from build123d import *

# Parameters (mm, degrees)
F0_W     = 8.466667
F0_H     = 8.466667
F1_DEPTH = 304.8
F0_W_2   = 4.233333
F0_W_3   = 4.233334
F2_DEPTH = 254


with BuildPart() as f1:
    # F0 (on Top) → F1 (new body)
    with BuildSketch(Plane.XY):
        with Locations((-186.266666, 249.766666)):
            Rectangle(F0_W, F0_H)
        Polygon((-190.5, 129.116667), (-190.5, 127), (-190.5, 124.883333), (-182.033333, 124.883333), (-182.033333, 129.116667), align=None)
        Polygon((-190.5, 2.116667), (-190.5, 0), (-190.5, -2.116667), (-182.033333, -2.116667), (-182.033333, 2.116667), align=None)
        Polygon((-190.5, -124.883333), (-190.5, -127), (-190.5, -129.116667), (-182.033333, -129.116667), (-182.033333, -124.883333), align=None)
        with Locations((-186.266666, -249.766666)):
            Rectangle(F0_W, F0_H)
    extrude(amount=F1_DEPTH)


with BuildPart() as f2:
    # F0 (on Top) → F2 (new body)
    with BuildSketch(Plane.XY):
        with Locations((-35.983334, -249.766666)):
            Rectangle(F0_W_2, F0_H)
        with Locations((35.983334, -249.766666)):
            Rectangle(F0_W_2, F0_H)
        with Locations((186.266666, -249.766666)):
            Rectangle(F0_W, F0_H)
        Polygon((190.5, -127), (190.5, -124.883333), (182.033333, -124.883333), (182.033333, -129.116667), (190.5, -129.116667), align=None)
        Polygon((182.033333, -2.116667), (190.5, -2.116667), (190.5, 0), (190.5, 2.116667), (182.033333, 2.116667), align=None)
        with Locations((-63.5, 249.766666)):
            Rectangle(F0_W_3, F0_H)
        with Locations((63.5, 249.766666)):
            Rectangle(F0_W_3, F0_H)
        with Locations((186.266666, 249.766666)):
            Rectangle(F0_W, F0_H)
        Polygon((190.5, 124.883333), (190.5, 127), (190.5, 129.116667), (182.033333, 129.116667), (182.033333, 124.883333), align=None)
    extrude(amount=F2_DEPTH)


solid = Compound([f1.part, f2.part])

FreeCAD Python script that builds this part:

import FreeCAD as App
import Part
import Sketcher

V = App.Vector
Q = App.Units.Quantity


def add_polygon(sketch, points):
    """Adds a closed chain of lines whose ends are joined by coincident constraints."""
    first, n = sketch.GeometryCount, len(points)
    for a, b in zip(points, points[1:] + points[:1]):
        sketch.addGeometry(Part.LineSegment(App.Vector(*a, 0), App.Vector(*b, 0)), False)
    for i in range(n):
        sketch.addConstraint(Sketcher.Constraint("Coincident", first + i, 2, first + (i + 1) % n, 1))

doc = App.newDocument("Part")
body = doc.addObject("PartDesign::Body", "Body")
body.AllowCompound = True

sketch1 = body.newObject("Sketcher::SketchObject", "Sketch")
sketch1.AttachmentSupport = (doc.getObject("XY_Plane"), [""])
sketch1.MapMode = "FlatFace"
add_polygon(sketch1, [(-190.5, 254), (-190.5, 245.5), (-182, 245.5), (-182, 254)])
add_polygon(sketch1, [(-190.5, 129.1), (-190.5, 124.9), (-182, 124.9), (-182, 129.1)])
add_polygon(sketch1, [(-190.5, 2.1), (-190.5, -2.1), (-182, -2.1), (-182, 2.1)])
add_polygon(sketch1, [(-190.5, -124.9), (-190.5, -129.1), (-182, -129.1), (-182, -124.9)])
add_polygon(sketch1, [(-190.5, -245.5), (-190.5, -254), (-182, -254), (-182, -245.5)])
sketch1.addConstraint([
    Sketcher.Constraint("Vertical", 0),
    Sketcher.Constraint("Horizontal", 1),
    Sketcher.Constraint("Vertical", 2),
    Sketcher.Constraint("Horizontal", 3),
    Sketcher.Constraint("Vertical", 4),
    Sketcher.Constraint("Horizontal", 5),
    Sketcher.Constraint("Vertical", 6),
    Sketcher.Constraint("Horizontal", 7),
    Sketcher.Constraint("Vertical", 8),
    Sketcher.Constraint("Horizontal", 9),
    Sketcher.Constraint("Vertical", 10),
    Sketcher.Constraint("Horizontal", 11),
    Sketcher.Constraint("Vertical", 12),
    Sketcher.Constraint("Horizontal", 13),
    Sketcher.Constraint("Vertical", 14),
    Sketcher.Constraint("Horizontal", 15),
    Sketcher.Constraint("Vertical", 16),
    Sketcher.Constraint("Horizontal", 17),
    Sketcher.Constraint("Vertical", 18),
    Sketcher.Constraint("Horizontal", 19),
    Sketcher.Constraint("Symmetric", 7, 2, 12, 2, -1),
    Sketcher.Constraint("Symmetric", 5, 2, 14, 2, -1),
    Sketcher.Constraint("Symmetric", 3, 2, 16, 2, -1),
    Sketcher.Constraint("Symmetric", 1, 2, 18, 2, -1),
    Sketcher.Constraint("Vertical", 3, 2, 4, 2),
    Sketcher.Constraint("Vertical", 2, 2, 5, 2),
    Sketcher.Constraint("Vertical", 7, 2, 8, 2),
    Sketcher.Constraint("Vertical", 6, 2, 9, 2),
    Sketcher.Constraint("Equal", 19, 0),
    Sketcher.Constraint("Equal", 6, 8),
    Sketcher.Constraint("DistanceY", -1, 1, 2, 2, Q("10 in")),
    Sketcher.Constraint("DistanceY", 8, 2, 4, 2, Q("5 in")),
    Sketcher.Constraint("DistanceY", 12, 2, 8, 2, Q("5 in")),
    Sketcher.Constraint("DistanceX", 0, 2, -1, 1, Q("7.5 in")),
    Sketcher.Constraint("DistanceY", 4, 2, 0, 2, Q("4.75 in")),
    Sketcher.Constraint("DistanceX", 1, 1, 1, 2, Q("8.466667 mm")),
])
pad1 = body.newObject("PartDesign::Pad", "Pad")
pad1.Profile = sketch1
pad1.Length = Q("12 in")
body2 = doc.addObject("PartDesign::Body", "Body001")
body2.AllowCompound = True

sketch2 = body2.newObject("Sketcher::SketchObject", "Sketch001")
sketch2.AttachmentSupport = (doc.getObject("XY_Plane001"), [""])
sketch2.MapMode = "FlatFace"
add_polygon(sketch2, [(-38.1, -245.5), (-38.1, -254), (-33.9, -254), (-33.9, -245.5)])
add_polygon(sketch2, [(33.9, -245.5), (33.9, -254), (38.1, -254), (38.1, -245.5)])
add_polygon(sketch2, [(182, -245.5), (182, -254), (190.5, -254), (190.5, -245.5)])
add_polygon(sketch2, [(190.5, -124.9), (182, -124.9), (182, -129.1), (190.5, -129.1)])
add_polygon(sketch2, [(182, -2.1), (190.5, -2.1), (190.5, 2.1), (182, 2.1)])
add_polygon(sketch2, [(-65.6, 254), (-65.6, 245.5), (-61.4, 245.5), (-61.4, 254)])
add_polygon(sketch2, [(61.4, 254), (61.4, 245.5), (65.6, 245.5), (65.6, 254)])
add_polygon(sketch2, [(182, 254), (182, 245.5), (190.5, 245.5), (190.5, 254)])
add_polygon(sketch2, [(190.5, 124.9), (190.5, 129.1), (182, 129.1), (182, 124.9)])
sketch2.addConstraint([
    Sketcher.Constraint("Vertical", 0),
    Sketcher.Constraint("Horizontal", 1),
    Sketcher.Constraint("Vertical", 2),
    Sketcher.Constraint("Horizontal", 3),
    Sketcher.Constraint("Vertical", 4),
    Sketcher.Constraint("Horizontal", 5),
    Sketcher.Constraint("Vertical", 6),
    Sketcher.Constraint("Horizontal", 7),
    Sketcher.Constraint("Vertical", 8),
    Sketcher.Constraint("Horizontal", 9),
    Sketcher.Constraint("Vertical", 10),
    Sketcher.Constraint("Horizontal", 11),
    Sketcher.Constraint("Horizontal", 12),
    Sketcher.Constraint("Vertical", 13),
    Sketcher.Constraint("Horizontal", 14),
    Sketcher.Constraint("Vertical", 15),
    Sketcher.Constraint("Horizontal", 16),
    Sketcher.Constraint("Vertical", 17),
    Sketcher.Constraint("Horizontal", 18),
    Sketcher.Constraint("Vertical", 19),
    Sketcher.Constraint("Vertical", 20),
    Sketcher.Constraint("Horizontal", 21),
    Sketcher.Constraint("Vertical", 22),
    Sketcher.Constraint("Horizontal", 23),
    Sketcher.Constraint("Vertical", 24),
    Sketcher.Constraint("Horizontal", 25),
    Sketcher.Constraint("Vertical", 26),
    Sketcher.Constraint("Horizontal", 27),
    Sketcher.Constraint("Vertical", 28),
    Sketcher.Constraint("Horizontal", 29),
    Sketcher.Constraint("Vertical", 30),
    Sketcher.Constraint("Horizontal", 31),
    Sketcher.Constraint("Vertical", 32),
    Sketcher.Constraint("Horizontal", 33),
    Sketcher.Constraint("Vertical", 34),
    Sketcher.Constraint("Horizontal", 35),
    Sketcher.Constraint("Symmetric", 1, 2, 4, 2, -2),
    Sketcher.Constraint("Symmetric", 3, 2, 6, 2, -2),
    Sketcher.Constraint("Symmetric", 21, 2, 24, 2, -2),
    Sketcher.Constraint("Symmetric", 23, 2, 26, 2, -2),
    Sketcher.Constraint("Symmetric", 11, 2, 28, 2, -1),
    Sketcher.Constraint("Symmetric", 9, 2, 30, 2, -1),
    Sketcher.Constraint("Symmetric", 14, 2, 32, 2, -1),
    Sketcher.Constraint("Symmetric", 12, 2, 34, 2, -1),
    Sketcher.Constraint("Horizontal", 5, 2, 8, 2),
    Sketcher.Constraint("Horizontal", 7, 2, 10, 2),
    Sketcher.Constraint("Horizontal", 25, 2, 28, 2),
    Sketcher.Constraint("Horizontal", 27, 2, 30, 2),
    Sketcher.Constraint("Vertical", 11, 2, 12, 2),
    Sketcher.Constraint("Vertical", 10, 2, 14, 2),
    Sketcher.Constraint("Vertical", 15, 2, 16, 2),
    Sketcher.Constraint("Vertical", 13, 2, 18, 2),
    Sketcher.Constraint("Equal", 7, 21),
    Sketcher.Constraint("Equal", 35, 0),
    Sketcher.Constraint("Equal", 27, 13),
    Sketcher.Constraint("Equal", 15, 17),
    Sketcher.Constraint("DistanceY", 0, 2, -1, 1, Q("10 in")),
    Sketcher.Constraint("DistanceX", 0, 2, 5, 2, Q("3 in")),
    Sketcher.Constraint("DistanceX", 5, 2, 9, 2, Q("6 in")),
    Sketcher.Constraint("DistanceY", 14, 2, 16, 2, Q("5 in")),
    Sketcher.Constraint("DistanceX", 20, 2, 24, 2, Q("5 in")),
    Sketcher.Constraint("DistanceY", 17, 2, 32, 2, Q("5 in")),
    Sketcher.Constraint("DistanceX", 1, 2, 8, 2, Q("8.5 in")),
    Sketcher.Constraint("DistanceY", 11, 2, 12, 2, Q("4.75 in")),
])
pad2 = body2.newObject("PartDesign::Pad", "Pad001")
pad2.Profile = sketch2
pad2.Length = Q("10 in")

doc.recompute()
